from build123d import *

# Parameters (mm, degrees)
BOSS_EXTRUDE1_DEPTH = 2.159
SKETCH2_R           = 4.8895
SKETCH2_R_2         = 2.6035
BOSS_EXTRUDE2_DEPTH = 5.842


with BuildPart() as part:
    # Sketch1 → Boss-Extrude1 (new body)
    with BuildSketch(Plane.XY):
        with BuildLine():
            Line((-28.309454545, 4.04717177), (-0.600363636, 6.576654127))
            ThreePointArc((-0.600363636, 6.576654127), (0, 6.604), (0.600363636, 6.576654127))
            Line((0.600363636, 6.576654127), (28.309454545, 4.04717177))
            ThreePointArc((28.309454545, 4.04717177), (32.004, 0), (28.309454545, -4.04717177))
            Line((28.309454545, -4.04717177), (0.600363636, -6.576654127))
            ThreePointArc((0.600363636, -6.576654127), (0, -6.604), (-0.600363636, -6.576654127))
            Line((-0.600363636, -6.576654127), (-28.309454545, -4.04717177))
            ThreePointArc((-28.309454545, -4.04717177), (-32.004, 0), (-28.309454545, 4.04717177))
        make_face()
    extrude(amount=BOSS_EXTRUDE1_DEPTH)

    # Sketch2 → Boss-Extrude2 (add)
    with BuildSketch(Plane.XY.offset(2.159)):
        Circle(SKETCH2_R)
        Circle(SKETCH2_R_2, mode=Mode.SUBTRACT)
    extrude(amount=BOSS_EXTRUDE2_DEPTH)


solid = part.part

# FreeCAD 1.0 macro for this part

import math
import FreeCAD as App
import Part
import Sketcher

V = App.Vector
Q = App.Units.Quantity

doc = App.newDocument("Part")
params = doc.addObject("Spreadsheet::Sheet", "Params")
for row, (alias, value) in enumerate([
    ("sketch1_radius", "0.16 in"),
    ("sketch1_radius2", "0.26 in"),
    ("pad1_length", "0.085 in"),
    ("sketch2_diameter", "0.385 in"),
    ("sketch2_diameter2", "0.205 in"),
    ("pad2_length", "0.23 in"),
], start=1):
    params.set(f"A{row}", alias)
    params.set(f"B{row}", "=" + value)
    params.setAlias(f"B{row}", alias)

body = doc.addObject("PartDesign::Body", "Body")

sketch1 = body.newObject("Sketcher::SketchObject", "Sketch")
sketch1.AttachmentSupport = (doc.getObject("XY_Plane"), [""])
sketch1.MapMode = "FlatFace"
sketch1.addGeometry([
    Part.LineSegment(V(-0.6, 6.6, 0), V(-28.3, 4, 0)),
    Part.ArcOfCircle(Part.Circle(V(-27.9, 0, 0), V(0, 0, 1), 4.1), math.radians(95), math.radians(265)),
    Part.LineSegment(V(-28.3, -4, 0), V(-0.6, -6.6, 0)),
    Part.ArcOfCircle(Part.Circle(V(0, 0, 0), V(0, 0, 1), 6.6), math.radians(-95.22), math.radians(-84.78)),
    Part.LineSegment(V(0.6, -6.6, 0), V(28.3, -4, 0)),
    Part.ArcOfCircle(Part.Circle(V(27.9, 0, 0), V(0, 0, 1), 4.1), math.radians(-85), math.radians(85)),
    Part.LineSegment(V(28.3, 4, 0), V(0.6, 6.6, 0)),
    Part.ArcOfCircle(Part.Circle(V(0, 0, 0), V(0, 0, 1), 6.6), math.radians(84.78), math.radians(95.22)),
], False)
sketch1.addConstraint([
    Sketcher.Constraint("Tangent", 0, 2, 1, 1),
    Sketcher.Constraint("Tangent", 1, 2, 2, 1),
    Sketcher.Constraint("Tangent", 2, 2, 3, 1),
    Sketcher.Constraint("Tangent", 3, 2, 4, 1),
    Sketcher.Constraint("Tangent", 4, 2, 5, 1),
    Sketcher.Constraint("Tangent", 5, 2, 6, 1),
    Sketcher.Constraint("Tangent", 6, 2, 7, 1),
    Sketcher.Constraint("Tangent", 7, 2, 0, 1),
    Sketcher.Constraint("Coincident", 3, 3, -1, 1),
    Sketcher.Constraint("Coincident", 7, 3, -1, 1),
    Sketcher.Constraint("Equal", 1, 5),
    Sketcher.Constraint("Equal", 3, 7),
    Sketcher.Constraint("Symmetric", 1, 3, 5, 3, -1, 1),
    Sketcher.Constraint("PointOnObject", 1, 3, -1),
    Sketcher.Constraint("Radius", 1, Q("0.16 in")),
    Sketcher.Constraint("Radius", 3, Q("0.26 in")),
    Sketcher.Constraint("DistanceX", 1, 3, -1, 1, Q("1.1 in")),
])
sketch1.setExpression("Constraints[14]", "Params.sketch1_radius")
sketch1.setExpression("Constraints[15]", "Params.sketch1_radius2")
pad1 = body.newObject("PartDesign::Pad", "Pad")
pad1.Profile = sketch1
pad1.setExpression("Length", "Params.pad1_length")

sketch2 = body.newObject("Sketcher::SketchObject", "Sketch001")
sketch2.AttachmentSupport = (doc.getObject("XY_Plane"), [""])
sketch2.MapMode = "FlatFace"
sketch2.AttachmentOffset = App.Placement(V(0, 0, 0.085 * 25.4), App.Rotation())
sketch2.addGeometry([
    Part.Circle(V(0, 0, 0), V(0, 0, 1), 4.9),
    Part.Circle(V(0, 0, 0), V(0, 0, 1), 2.6),
], False)
sketch2.addConstraint([
    Sketcher.Constraint("Coincident", 0, 3, -1, 1),
    Sketcher.Constraint("Coincident", 1, 3, -1, 1),
    Sketcher.Constraint("Diameter", 0, Q("0.385 in")),
    Sketcher.Constraint("Diameter", 1, Q("0.205 in")),
])
sketch2.setExpression("Constraints[2]", "Params.sketch2_diameter")
sketch2.setExpression("Constraints[3]", "Params.sketch2_diameter2")
pad2 = body.newObject("PartDesign::Pad", "Pad001")
pad2.Profile = sketch2
pad2.setExpression("Length", "Params.pad2_length")

doc.recompute()
